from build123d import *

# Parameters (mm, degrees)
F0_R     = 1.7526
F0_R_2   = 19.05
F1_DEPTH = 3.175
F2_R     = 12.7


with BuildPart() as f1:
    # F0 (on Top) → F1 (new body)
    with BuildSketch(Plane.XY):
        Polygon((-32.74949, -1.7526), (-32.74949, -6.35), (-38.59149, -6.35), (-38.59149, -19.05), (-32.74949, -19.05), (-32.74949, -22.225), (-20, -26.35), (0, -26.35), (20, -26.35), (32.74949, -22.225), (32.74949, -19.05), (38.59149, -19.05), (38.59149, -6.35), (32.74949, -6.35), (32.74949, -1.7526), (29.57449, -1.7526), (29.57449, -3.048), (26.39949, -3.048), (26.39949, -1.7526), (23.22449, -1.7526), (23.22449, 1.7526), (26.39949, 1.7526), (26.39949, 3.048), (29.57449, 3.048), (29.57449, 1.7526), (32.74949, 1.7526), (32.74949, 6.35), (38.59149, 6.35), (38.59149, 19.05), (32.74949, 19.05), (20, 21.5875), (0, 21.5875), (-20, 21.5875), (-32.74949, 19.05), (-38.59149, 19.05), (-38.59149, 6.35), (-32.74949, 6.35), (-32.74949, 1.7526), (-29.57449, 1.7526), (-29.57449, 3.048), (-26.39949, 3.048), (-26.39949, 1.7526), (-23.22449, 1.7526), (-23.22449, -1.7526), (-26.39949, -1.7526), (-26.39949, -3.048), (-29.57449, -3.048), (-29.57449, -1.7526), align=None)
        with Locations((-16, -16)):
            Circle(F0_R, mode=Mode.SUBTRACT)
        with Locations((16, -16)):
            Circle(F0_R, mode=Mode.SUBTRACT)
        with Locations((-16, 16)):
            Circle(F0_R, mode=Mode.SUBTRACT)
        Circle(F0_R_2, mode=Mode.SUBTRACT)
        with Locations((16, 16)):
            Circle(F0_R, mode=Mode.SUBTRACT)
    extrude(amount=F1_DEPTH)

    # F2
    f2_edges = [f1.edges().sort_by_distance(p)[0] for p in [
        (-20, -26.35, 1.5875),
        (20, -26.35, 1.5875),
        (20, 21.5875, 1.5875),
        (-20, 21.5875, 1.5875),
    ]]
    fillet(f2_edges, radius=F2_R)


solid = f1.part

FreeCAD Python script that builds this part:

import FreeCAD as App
import Part
import Sketcher
Q = App.Units.Quantity


def edges_at(feature, points):
    """Names of the edges that pass closest to the given points."""
    edges = feature.Shape.Edges
    near = lambda p: min(range(len(edges)), key=lambda i: edges[i].distToShape(Part.Vertex(*p))[0])
    return sorted({f"Edge{near(p) + 1}" for p in points})

doc = App.newDocument("Part")
body = doc.addObject("PartDesign::Body", "Body")

# Sketch on XY plane
sketch1 = doc.addObject("Sketcher::SketchObject", "Sketch")
body.addObject(sketch1)
sketch1.AttachmentSupport = (doc.XY_Plane, [""])
sketch1.MapMode = "FlatFace"
sketch1.addGeometry(Part.LineSegment(App.Vector(-32.7, -1.8, 0), App.Vector(-32.7, -6.3, 0)), False)
sketch1.addGeometry(Part.LineSegment(App.Vector(-32.7, -6.3, 0), App.Vector(-38.6, -6.3, 0)), False)
sketch1.addGeometry(Part.LineSegment(App.Vector(-38.6, -6.3, 0), App.Vector(-38.6, -19.1, 0)), False)
sketch1.addGeometry(Part.LineSegment(App.Vector(-38.6, -19.1, 0), App.Vector(-32.7, -19.1, 0)), False)
sketch1.addGeometry(Part.LineSegment(App.Vector(-32.7, -19.1, 0), App.Vector(-32.7, -22.2, 0)), False)
sketch1.addGeometry(Part.LineSegment(App.Vector(-32.7, -22.2, 0), App.Vector(-20, -26.4, 0)), False)
sketch1.addGeometry(Part.LineSegment(App.Vector(-20, -26.4, 0), App.Vector(20, -26.4, 0)), False)
sketch1.addGeometry(Part.LineSegment(App.Vector(20, -26.4, 0), App.Vector(32.7, -22.2, 0)), False)
sketch1.addGeometry(Part.LineSegment(App.Vector(32.7, -22.2, 0), App.Vector(32.7, -19.1, 0)), False)
sketch1.addGeometry(Part.LineSegment(App.Vector(32.7, -19.1, 0), App.Vector(38.6, -19.1, 0)), False)
sketch1.addGeometry(Part.LineSegment(App.Vector(38.6, -19.1, 0), App.Vector(38.6, -6.3, 0)), False)
sketch1.addGeometry(Part.LineSegment(App.Vector(38.6, -6.3, 0), App.Vector(32.7, -6.3, 0)), False)
sketch1.addGeometry(Part.LineSegment(App.Vector(32.7, -6.3, 0), App.Vector(32.7, -1.8, 0)), False)
sketch1.addGeometry(Part.LineSegment(App.Vector(32.7, -1.8, 0), App.Vector(29.6, -1.8, 0)), False)
sketch1.addGeometry(Part.LineSegment(App.Vector(29.6, -1.8, 0), App.Vector(29.6, -3, 0)), False)
sketch1.addGeometry(Part.LineSegment(App.Vector(29.6, -3, 0), App.Vector(26.4, -3, 0)), False)
sketch1.addGeometry(Part.LineSegment(App.Vector(26.4, -3, 0), App.Vector(26.4, -1.8, 0)), False)
sketch1.addGeometry(Part.LineSegment(App.Vector(26.4, -1.8, 0), App.Vector(23.2, -1.8, 0)), False)
sketch1.addGeometry(Part.LineSegment(App.Vector(23.2, -1.8, 0), App.Vector(23.2, 1.8, 0)), False)
sketch1.addGeometry(Part.LineSegment(App.Vector(23.2, 1.8, 0), App.Vector(26.4, 1.8, 0)), False)
sketch1.addGeometry(Part.LineSegment(App.Vector(26.4, 1.8, 0), App.Vector(26.4, 3, 0)), False)
sketch1.addGeometry(Part.LineSegment(App.Vector(26.4, 3, 0), App.Vector(29.6, 3, 0)), False)
sketch1.addGeometry(Part.LineSegment(App.Vector(29.6, 3, 0), App.Vector(29.6, 1.8, 0)), False)
sketch1.addGeometry(Part.LineSegment(App.Vector(29.6, 1.8, 0), App.Vector(32.7, 1.8, 0)), False)
sketch1.addGeometry(Part.LineSegment(App.Vector(32.7, 1.8, 0), App.Vector(32.7, 6.3, 0)), False)
sketch1.addGeometry(Part.LineSegment(App.Vector(32.7, 6.3, 0), App.Vector(38.6, 6.3, 0)), False)
sketch1.addGeometry(Part.LineSegment(App.Vector(38.6, 6.3, 0), App.Vector(38.6, 19.1, 0)), False)
sketch1.addGeometry(Part.LineSegment(App.Vector(38.6, 19.1, 0), App.Vector(32.7, 19.1, 0)), False)
sketch1.addGeometry(Part.LineSegment(App.Vector(32.7, 19.1, 0), App.Vector(20, 21.6, 0)), False)
sketch1.addGeometry(Part.LineSegment(App.Vector(20, 21.6, 0), App.Vector(-20, 21.6, 0)), False)
sketch1.addGeometry(Part.LineSegment(App.Vector(-20, 21.6, 0), App.Vector(-32.7, 19.1, 0)), False)
sketch1.addGeometry(Part.LineSegment(App.Vector(-32.7, 19.1, 0), App.Vector(-38.6, 19.1, 0)), False)
sketch1.addGeometry(Part.LineSegment(App.Vector(-38.6, 19.1, 0), App.Vector(-38.6, 6.3, 0)), False)
sketch1.addGeometry(Part.LineSegment(App.Vector(-38.6, 6.3, 0), App.Vector(-32.7, 6.3, 0)), False)
sketch1.addGeometry(Part.LineSegment(App.Vector(-32.7, 6.3, 0), App.Vector(-32.7, 1.8, 0)), False)
sketch1.addGeometry(Part.LineSegment(App.Vector(-32.7, 1.8, 0), App.Vector(-29.6, 1.8, 0)), False)
sketch1.addGeometry(Part.LineSegment(App.Vector(-29.6, 1.8, 0), App.Vector(-29.6, 3, 0)), False)
sketch1.addGeometry(Part.LineSegment(App.Vector(-29.6, 3, 0), App.Vector(-26.4, 3, 0)), False)
sketch1.addGeometry(Part.LineSegment(App.Vector(-26.4, 3, 0), App.Vector(-26.4, 1.8, 0)), False)
sketch1.addGeometry(Part.LineSegment(App.Vector(-26.4, 1.8, 0), App.Vector(-23.2, 1.8, 0)), False)
sketch1.addGeometry(Part.LineSegment(App.Vector(-23.2, 1.8, 0), App.Vector(-23.2, -1.8, 0)), False)
sketch1.addGeometry(Part.LineSegment(App.Vector(-23.2, -1.8, 0), App.Vector(-26.4, -1.8, 0)), False)
sketch1.addGeometry(Part.LineSegment(App.Vector(-26.4, -1.8, 0), App.Vector(-26.4, -3, 0)), False)
sketch1.addGeometry(Part.LineSegment(App.Vector(-26.4, -3, 0), App.Vector(-29.6, -3, 0)), False)
sketch1.addGeometry(Part.LineSegment(App.Vector(-29.6, -3, 0), App.Vector(-29.6, -1.8, 0)), False)
sketch1.addGeometry(Part.LineSegment(App.Vector(-29.6, -1.8, 0), App.Vector(-32.7, -1.8, 0)), False)
sketch1.addGeometry(Part.Circle(App.Vector(-16, -16, 0), App.Vector(0, 0, 1), 1.8), False)
sketch1.addGeometry(Part.Circle(App.Vector(16, -16, 0), App.Vector(0, 0, 1), 1.8), False)
sketch1.addGeometry(Part.Circle(App.Vector(-16, 16, 0), App.Vector(0, 0, 1), 1.8), False)
sketch1.addGeometry(Part.Circle(App.Vector(0, 0, 0), App.Vector(0, 0, 1), 19.1), False)
sketch1.addGeometry(Part.Circle(App.Vector(16, 16, 0), App.Vector(0, 0, 1), 1.8), False)
sketch1.addConstraint(Sketcher.Constraint("Coincident", 0, 2, 1, 1))
sketch1.addConstraint(Sketcher.Constraint("Coincident", 1, 2, 2, 1))
sketch1.addConstraint(Sketcher.Constraint("Coincident", 2, 2, 3, 1))
sketch1.addConstraint(Sketcher.Constraint("Coincident", 3, 2, 4, 1))
sketch1.addConstraint(Sketcher.Constraint("Coincident", 4, 2, 5, 1))
sketch1.addConstraint(Sketcher.Constraint("Coincident", 5, 2, 6, 1))
sketch1.addConstraint(Sketcher.Constraint("Coincident", 6, 2, 7, 1))
sketch1.addConstraint(Sketcher.Constraint("Coincident", 7, 2, 8, 1))
sketch1.addConstraint(Sketcher.Constraint("Coincident", 8, 2, 9, 1))
sketch1.addConstraint(Sketcher.Constraint("Coincident", 9, 2, 10, 1))
sketch1.addConstraint(Sketcher.Constraint("Coincident", 10, 2, 11, 1))
sketch1.addConstraint(Sketcher.Constraint("Coincident", 11, 2, 12, 1))
sketch1.addConstraint(Sketcher.Constraint("Coincident", 12, 2, 13, 1))
sketch1.addConstraint(Sketcher.Constraint("Coincident", 13, 2, 14, 1))
sketch1.addConstraint(Sketcher.Constraint("Coincident", 14, 2, 15, 1))
sketch1.addConstraint(Sketcher.Constraint("Coincident", 15, 2, 16, 1))
sketch1.addConstraint(Sketcher.Constraint("Coincident", 16, 2, 17, 1))
sketch1.addConstraint(Sketcher.Constraint("Coincident", 17, 2, 18, 1))
sketch1.addConstraint(Sketcher.Constraint("Coincident", 18, 2, 19, 1))
sketch1.addConstraint(Sketcher.Constraint("Coincident", 19, 2, 20, 1))
sketch1.addConstraint(Sketcher.Constraint("Coincident", 20, 2, 21, 1))
sketch1.addConstraint(Sketcher.Constraint("Coincident", 21, 2, 22, 1))
sketch1.addConstraint(Sketcher.Constraint("Coincident", 22, 2, 23, 1))
sketch1.addConstraint(Sketcher.Constraint("Coincident", 23, 2, 24, 1))
sketch1.addConstraint(Sketcher.Constraint("Coincident", 24, 2, 25, 1))
sketch1.addConstraint(Sketcher.Constraint("Coincident", 25, 2, 26, 1))
sketch1.addConstraint(Sketcher.Constraint("Coincident", 26, 2, 27, 1))
sketch1.addConstraint(Sketcher.Constraint("Coincident", 27, 2, 28, 1))
sketch1.addConstraint(Sketcher.Constraint("Coincident", 28, 2, 29, 1))
sketch1.addConstraint(Sketcher.Constraint("Coincident", 29, 2, 30, 1))
sketch1.addConstraint(Sketcher.Constraint("Coincident", 30, 2, 31, 1))
sketch1.addConstraint(Sketcher.Constraint("Coincident", 31, 2, 32, 1))
sketch1.addConstraint(Sketcher.Constraint("Coincident", 32, 2, 33, 1))
sketch1.addConstraint(Sketcher.Constraint("Coincident", 33, 2, 34, 1))
sketch1.addConstraint(Sketcher.Constraint("Coincident", 34, 2, 35, 1))
sketch1.addConstraint(Sketcher.Constraint("Coincident", 35, 2, 36, 1))
sketch1.addConstraint(Sketcher.Constraint("Coincident", 36, 2, 37, 1))
sketch1.addConstraint(Sketcher.Constraint("Coincident", 37, 2, 38, 1))
sketch1.addConstraint(Sketcher.Constraint("Coincident", 38, 2, 39, 1))
sketch1.addConstraint(Sketcher.Constraint("Coincident", 39, 2, 40, 1))
sketch1.addConstraint(Sketcher.Constraint("Coincident", 40, 2, 41, 1))
sketch1.addConstraint(Sketcher.Constraint("Coincident", 41, 2, 42, 1))
sketch1.addConstraint(Sketcher.Constraint("Coincident", 42, 2, 43, 1))
sketch1.addConstraint(Sketcher.Constraint("Coincident", 43, 2, 44, 1))
sketch1.addConstraint(Sketcher.Constraint("Coincident", 44, 2, 45, 1))
sketch1.addConstraint(Sketcher.Constraint("Coincident", 45, 2, 0, 1))
sketch1.addConstraint(Sketcher.Constraint("Vertical", 0))
sketch1.addConstraint(Sketcher.Constraint("Horizontal", 1))
sketch1.addConstraint(Sketcher.Constraint("Vertical", 2))
sketch1.addConstraint(Sketcher.Constraint("Horizontal", 3))
sketch1.addConstraint(Sketcher.Constraint("Vertical", 4))
sketch1.addConstraint(Sketcher.Constraint("Horizontal", 6))
sketch1.addConstraint(Sketcher.Constraint("Vertical", 8))
sketch1.addConstraint(Sketcher.Constraint("Horizontal", 9))
sketch1.addConstraint(Sketcher.Constraint("Vertical", 10))
sketch1.addConstraint(Sketcher.Constraint("Horizontal", 11))
sketch1.addConstraint(Sketcher.Constraint("Vertical", 12))
sketch1.addConstraint(Sketcher.Constraint("Horizontal", 13))
sketch1.addConstraint(Sketcher.Constraint("Vertical", 14))
sketch1.addConstraint(Sketcher.Constraint("Horizontal", 15))
sketch1.addConstraint(Sketcher.Constraint("Vertical", 16))
sketch1.addConstraint(Sketcher.Constraint("Horizontal", 17))
sketch1.addConstraint(Sketcher.Constraint("Vertical", 18))
sketch1.addConstraint(Sketcher.Constraint("Horizontal", 19))
sketch1.addConstraint(Sketcher.Constraint("Vertical", 20))
sketch1.addConstraint(Sketcher.Constraint("Horizontal", 21))
sketch1.addConstraint(Sketcher.Constraint("Vertical", 22))
sketch1.addConstraint(Sketcher.Constraint("Horizontal", 23))
sketch1.addConstraint(Sketcher.Constraint("Vertical", 24))
sketch1.addConstraint(Sketcher.Constraint("Horizontal", 25))
sketch1.addConstraint(Sketcher.Constraint("Vertical", 26))
sketch1.addConstraint(Sketcher.Constraint("Horizontal", 27))
sketch1.addConstraint(Sketcher.Constraint("Horizontal", 29))
sketch1.addConstraint(Sketcher.Constraint("Horizontal", 31))
sketch1.addConstraint(Sketcher.Constraint("Vertical", 32))
sketch1.addConstraint(Sketcher.Constraint("Horizontal", 33))
sketch1.addConstraint(Sketcher.Constraint("Vertical", 34))
sketch1.addConstraint(Sketcher.Constraint("Horizontal", 35))
sketch1.addConstraint(Sketcher.Constraint("Vertical", 36))
sketch1.addConstraint(Sketcher.Constraint("Horizontal", 37))
sketch1.addConstraint(Sketcher.Constraint("Vertical", 38))
sketch1.addConstraint(Sketcher.Constraint("Horizontal", 39))
sketch1.addConstraint(Sketcher.Constraint("Vertical", 40))
sketch1.addConstraint(Sketcher.Constraint("Horizontal", 41))
sketch1.addConstraint(Sketcher.Constraint("Vertical", 42))
sketch1.addConstraint(Sketcher.Constraint("Horizontal", 43))
sketch1.addConstraint(Sketcher.Constraint("Vertical", 44))
sketch1.addConstraint(Sketcher.Constraint("Horizontal", 45))
sketch1.addConstraint(Sketcher.Constraint("Coincident", 49, 3, -1, 1))
sketch1.addConstraint(Sketcher.Constraint("Equal", 46, 47))
sketch1.addConstraint(Sketcher.Constraint("Equal", 47, 48))
sketch1.addConstraint(Sketcher.Constraint("Equal", 48, 50))
sketch1.addConstraint(Sketcher.Constraint("Symmetric", 47, 3, 48, 3, -1, 1))
sketch1.addConstraint(Sketcher.Constraint("Symmetric", 46, 3, 50, 3, -1, 1))
sketch1.addConstraint(Sketcher.Constraint("Symmetric", 0, 2, 24, 2, -1, 1))
sketch1.addConstraint(Sketcher.Constraint("Symmetric", 2, 2, 26, 2, -1, 1))
sketch1.addConstraint(Sketcher.Constraint("Symmetric", 8, 2, 30, 2, -1, 1))
sketch1.addConstraint(Sketcher.Constraint("Symmetric", 10, 2, 32, 2, -1, 1))
sketch1.addConstraint(Sketcher.Constraint("Symmetric", 12, 2, 34, 2, -1, 1))
sketch1.addConstraint(Sketcher.Constraint("Symmetric", 14, 2, 36, 2, -1, 1))
sketch1.addConstraint(Sketcher.Constraint("Symmetric", 16, 2, 38, 2, -1, 1))
sketch1.addConstraint(Sketcher.Constraint("Symmetric", 18, 2, 40, 2, -1, 1))
sketch1.addConstraint(Sketcher.Constraint("Symmetric", 20, 2, 42, 2, -1, 1))
sketch1.addConstraint(Sketcher.Constraint("Symmetric", 22, 2, 44, 2, -1, 1))
sketch1.addConstraint(Sketcher.Constraint("Symmetric", 46, 3, 47, 3, -2))
sketch1.addConstraint(Sketcher.Constraint("Symmetric", 4, 2, 7, 2, -2))
sketch1.addConstraint(Sketcher.Constraint("Symmetric", 2, 2, 9, 2, -2))
sketch1.addConstraint(Sketcher.Constraint("Symmetric", 0, 2, 11, 2, -2))
sketch1.addConstraint(Sketcher.Constraint("Symmetric", 22, 2, 35, 2, -2))
sketch1.addConstraint(Sketcher.Constraint("Symmetric", 20, 2, 37, 2, -2))
sketch1.addConstraint(Sketcher.Constraint("Horizontal", 13, 2, 16, 2))
sketch1.addConstraint(Sketcher.Constraint("Horizontal", 19, 2, 22, 2))
sketch1.addConstraint(Sketcher.Constraint("Vertical", 0, 2, 3, 2))
sketch1.addConstraint(Sketcher.Constraint("Vertical", 24, 2, 27, 2))
sketch1.addConstraint(Sketcher.Constraint("Vertical", 6, 2, 28, 2))
sketch1.addConstraint(Sketcher.Constraint("Vertical", 5, 2, 29, 2))
sketch1.addConstraint(Sketcher.Constraint("Equal", 13, 15))
sketch1.addConstraint(Sketcher.Constraint("Equal", 15, 17))
sketch1.addConstraint(Sketcher.Constraint("Equal", 45, 4))
sketch1.addConstraint(Sketcher.Constraint("Equal", 5, 7))
sketch1.addConstraint(Sketcher.Constraint("Diameter", 49, Q("1.5 in")))
sketch1.addConstraint(Sketcher.Constraint("Diameter", 46, Q("0.138 in")))
sketch1.addConstraint(Sketcher.Constraint("DistanceY", 2, 2, 2, 1, Q("0.5 in")))
sketch1.addConstraint(Sketcher.Constraint("DistanceY", 0, 2, 30, 2, Q("1 in")))
sketch1.addConstraint(Sketcher.Constraint("DistanceX", 1, 2, 1, 1, Q("0.23 in")))
sketch1.addConstraint(Sketcher.Constraint("DistanceX", 13, 2, 13, 1, Q("0.125 in")))
sketch1.addConstraint(Sketcher.Constraint("DistanceY", 0, 2, 0, 1, Q("0.181 in")))
sketch1.addConstraint(Sketcher.Constraint("DistanceY", 14, 2, 14, 1, Q("0.051 in")))
sketch1.addConstraint(Sketcher.Constraint("DistanceX", 6, 1, 6, 2, 40.0))
sketch1.addConstraint(Sketcher.Constraint("DistanceX", 46, 3, -1, 1, 16.0))
sketch1.addConstraint(Sketcher.Constraint("DistanceY", 46, 3, -1, 1, 16.0))
sketch1.addConstraint(Sketcher.Constraint("DistanceY", 5, 2, -1, 1, 26.35))
sketch1.addConstraint(Sketcher.Constraint("DistanceY", -1, 1, 28, 2, 21.5875))
sketch1.addConstraint(Sketcher.Constraint("Distance", 5, 13.400191))
pad1 = doc.addObject("PartDesign::Pad", "Pad")
body.addObject(pad1)
pad1.Profile = sketch1
pad1.Length = Q("0.125 in")
doc.recompute()

fillet = doc.addObject("PartDesign::Fillet", "Fillet")
body.addObject(fillet)
fillet.Base = (pad1, edges_at(pad1, [
    (-20, -26.35, 1.587),
    (20, -26.35, 1.587),
    (20, 21.587, 1.587),
    (-20, 21.587, 1.587),
]))
fillet.Radius = Q("0.5 in")

doc.recompute()
